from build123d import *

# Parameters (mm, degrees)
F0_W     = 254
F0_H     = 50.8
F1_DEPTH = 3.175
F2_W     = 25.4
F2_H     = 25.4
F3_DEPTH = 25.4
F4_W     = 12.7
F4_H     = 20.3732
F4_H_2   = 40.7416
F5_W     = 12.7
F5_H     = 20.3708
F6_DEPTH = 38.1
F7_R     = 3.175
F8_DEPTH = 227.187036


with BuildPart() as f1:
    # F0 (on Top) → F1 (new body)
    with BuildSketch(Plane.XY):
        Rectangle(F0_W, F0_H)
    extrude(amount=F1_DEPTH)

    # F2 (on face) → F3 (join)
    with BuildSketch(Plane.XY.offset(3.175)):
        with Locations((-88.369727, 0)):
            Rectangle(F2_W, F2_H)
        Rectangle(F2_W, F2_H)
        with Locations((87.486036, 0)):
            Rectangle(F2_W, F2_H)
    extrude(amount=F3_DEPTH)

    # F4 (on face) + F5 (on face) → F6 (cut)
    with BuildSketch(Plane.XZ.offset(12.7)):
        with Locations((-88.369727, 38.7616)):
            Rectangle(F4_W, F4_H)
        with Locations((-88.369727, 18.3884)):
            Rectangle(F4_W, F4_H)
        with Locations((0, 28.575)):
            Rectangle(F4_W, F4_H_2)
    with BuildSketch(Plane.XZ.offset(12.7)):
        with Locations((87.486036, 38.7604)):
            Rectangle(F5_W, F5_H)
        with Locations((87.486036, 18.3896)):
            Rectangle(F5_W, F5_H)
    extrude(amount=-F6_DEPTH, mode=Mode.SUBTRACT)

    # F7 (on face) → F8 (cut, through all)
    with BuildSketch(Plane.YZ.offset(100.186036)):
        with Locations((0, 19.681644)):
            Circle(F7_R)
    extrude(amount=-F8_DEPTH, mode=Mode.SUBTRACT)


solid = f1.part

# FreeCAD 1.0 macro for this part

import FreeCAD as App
import Part
import Sketcher
Q = App.Units.Quantity


def add_polygon(sketch, points):
    """Adds a closed chain of lines whose ends are joined by coincident constraints."""
    first, n = sketch.GeometryCount, len(points)
    for a, b in zip(points, points[1:] + points[:1]):
        sketch.addGeometry(Part.LineSegment(App.Vector(*a, 0), App.Vector(*b, 0)), False)
    for i in range(n):
        sketch.addConstraint(Sketcher.Constraint("Coincident", first + i, 2, first + (i + 1) % n, 1))

doc = App.newDocument("Part")
body = doc.addObject("PartDesign::Body", "Body")

# Sketch on XY plane
sketch1 = body.newObject("Sketcher::SketchObject", "Sketch")
sketch1.AttachmentSupport = (doc.getObject("XY_Plane"), [""])
sketch1.MapMode = "FlatFace"
add_polygon(sketch1, [(-127, 25), (-127, -25), (127, -25), (127, 25)])  # lines 0-3
sketch1.addConstraint(Sketcher.Constraint("Vertical", 0))
sketch1.addConstraint(Sketcher.Constraint("Horizontal", 1))
sketch1.addConstraint(Sketcher.Constraint("Vertical", 2))
sketch1.addConstraint(Sketcher.Constraint("Horizontal", 3))
sketch1.addConstraint(Sketcher.Constraint("Symmetric", 0, 2, 2, 2, -1, 1))
sketch1.addConstraint(Sketcher.Constraint("DistanceX", 1, 1, 1, 2, Q("10 in")))
sketch1.addConstraint(Sketcher.Constraint("DistanceY", 0, 2, 0, 1, Q("2 in")))
pad1 = body.newObject("PartDesign::Pad", "Pad")
pad1.Profile = sketch1
pad1.Length = Q("0.125 in")

# Sketch on XY plane
sketch2 = body.newObject("Sketcher::SketchObject", "Sketch001")
sketch2.AttachmentSupport = (doc.getObject("XY_Plane"), [""])
sketch2.MapMode = "FlatFace"
sketch2.AttachmentOffset = App.Placement(App.Vector(0, 0, 0.125 * 25.4), App.Rotation())
add_polygon(sketch2, [(-101, 13), (-101, -13), (-76, -13), (-76, 13)])  # lines 0-3
add_polygon(sketch2, [(-13, 13), (-13, -13), (13, -13), (13, 13)])  # lines 4-7
add_polygon(sketch2, [(75, 13), (75, -13), (100, -13), (100, 13)])  # lines 8-11
sketch2.addConstraint(Sketcher.Constraint("Vertical", 0))
sketch2.addConstraint(Sketcher.Constraint("Horizontal", 1))
sketch2.addConstraint(Sketcher.Constraint("Vertical", 2))
sketch2.addConstraint(Sketcher.Constraint("Horizontal", 3))
sketch2.addConstraint(Sketcher.Constraint("Vertical", 4))
sketch2.addConstraint(Sketcher.Constraint("Horizontal", 5))
sketch2.addConstraint(Sketcher.Constraint("Vertical", 6))
sketch2.addConstraint(Sketcher.Constraint("Horizontal", 7))
sketch2.addConstraint(Sketcher.Constraint("Vertical", 8))
sketch2.addConstraint(Sketcher.Constraint("Horizontal", 9))
sketch2.addConstraint(Sketcher.Constraint("Vertical", 10))
sketch2.addConstraint(Sketcher.Constraint("Horizontal", 11))
sketch2.addConstraint(Sketcher.Constraint("Symmetric", 4, 2, 6, 2, -1, 1))
sketch2.addConstraint(Sketcher.Constraint("Horizontal", 1, 2, 4, 2))
sketch2.addConstraint(Sketcher.Constraint("Horizontal", 3, 2, 6, 2))
sketch2.addConstraint(Sketcher.Constraint("Horizontal", 5, 2, 8, 2))
sketch2.addConstraint(Sketcher.Constraint("Horizontal", 7, 2, 10, 2))
sketch2.addConstraint(Sketcher.Constraint("Equal", 3, 5))
sketch2.addConstraint(Sketcher.Constraint("Equal", 7, 9))
sketch2.addConstraint(Sketcher.Constraint("Equal", 11, 0))
sketch2.addConstraint(Sketcher.Constraint("DistanceX", 1, 1, 1, 2, Q("1 in")))
sketch2.addConstraint(Sketcher.Constraint("DistanceX", 0, 2, -1, 1, 101.069727))
sketch2.addConstraint(Sketcher.Constraint("DistanceX", -1, 1, 8, 2, 74.786036))
pad2 = body.newObject("PartDesign::Pad", "Pad001")
pad2.Profile = sketch2
pad2.Length = Q("1 in")

# Sketch on XZ plane
sketch3 = body.newObject("Sketcher::SketchObject", "Sketch002")
sketch3.AttachmentSupport = (doc.getObject("XZ_Plane"), [""])
sketch3.MapMode = "FlatFace"
sketch3.AttachmentOffset = App.Placement(App.Vector(0, 0, 0.5 * 25.4), App.Rotation())
add_polygon(sketch3, [(-95, 49), (-95, 8), (-82, 8), (-82, 49)])  # lines 0-3
add_polygon(sketch3, [(-6, 49), (-6, 8), (6, 8), (6, 49)])  # lines 4-7
add_polygon(sketch3, [(81, 49), (81, 8), (94, 8), (94, 49)])  # lines 8-11
sketch3.addConstraint(Sketcher.Constraint("Vertical", 0))
sketch3.addConstraint(Sketcher.Constraint("Horizontal", 1))
sketch3.addConstraint(Sketcher.Constraint("Vertical", 2))
sketch3.addConstraint(Sketcher.Constraint("Horizontal", 3))
sketch3.addConstraint(Sketcher.Constraint("Vertical", 4))
sketch3.addConstraint(Sketcher.Constraint("Horizontal", 5))
sketch3.addConstraint(Sketcher.Constraint("Vertical", 6))
sketch3.addConstraint(Sketcher.Constraint("Horizontal", 7))
sketch3.addConstraint(Sketcher.Constraint("Vertical", 8))
sketch3.addConstraint(Sketcher.Constraint("Horizontal", 9))
sketch3.addConstraint(Sketcher.Constraint("Vertical", 10))
sketch3.addConstraint(Sketcher.Constraint("Horizontal", 11))
sketch3.addConstraint(Sketcher.Constraint("Horizontal", 5, 2, 8, 2))
sketch3.addConstraint(Sketcher.Constraint("Horizontal", 7, 2, 10, 2))
sketch3.addConstraint(Sketcher.Constraint("Equal", 3, 5))
sketch3.addConstraint(Sketcher.Constraint("Equal", 7, 9))
sketch3.addConstraint(Sketcher.Constraint("DistanceX", 1, 1, 1, 2, Q("0.5 in")))
sketch3.addConstraint(Sketcher.Constraint("DistanceY", 4, 2, 4, 1, Q("1.604 in")))
sketch3.addConstraint(Sketcher.Constraint("DistanceX", 4, 2, -1, 1, Q("0.25 in")))
sketch3.addConstraint(Sketcher.Constraint("DistanceY", -1, 1, 4, 2, Q("0.323 in")))
sketch3.addConstraint(Sketcher.Constraint("DistanceY", 0, 2, 0, 1, 40.7464))
sketch3.addConstraint(Sketcher.Constraint("DistanceY", -1, 1, 0, 2, 8.2018))
sketch3.addConstraint(Sketcher.Constraint("DistanceX", 0, 2, -1, 1, 94.719727))
sketch3.addConstraint(Sketcher.Constraint("DistanceX", -1, 1, 8, 2, 81.136036))
pocket1 = body.newObject("PartDesign::Pocket", "Pocket")
pocket1.Profile = sketch3
pocket1.Length = Q("1.5 in")

# Sketch on YZ plane
sketch4 = body.newObject("Sketcher::SketchObject", "Sketch003")
sketch4.AttachmentSupport = (doc.getObject("YZ_Plane"), [""])
sketch4.MapMode = "FlatFace"
sketch4.AttachmentOffset = App.Placement(App.Vector(0, 0, 100.186036), App.Rotation())
sketch4.addGeometry(Part.Circle(App.Vector(0, 19.7, 0), App.Vector(0, 0, 1), 3.2), False)
sketch4.addConstraint(Sketcher.Constraint("PointOnObject", 0, 3, -2))
sketch4.addConstraint(Sketcher.Constraint("Diameter", 0, Q("0.25 in")))
sketch4.addConstraint(Sketcher.Constraint("DistanceY", -1, 1, 0, 3, 19.681644))
pocket2 = body.newObject("PartDesign::Pocket", "Pocket001")
pocket2.Profile = sketch4
pocket2.Type = "ThroughAll"

doc.recompute()
